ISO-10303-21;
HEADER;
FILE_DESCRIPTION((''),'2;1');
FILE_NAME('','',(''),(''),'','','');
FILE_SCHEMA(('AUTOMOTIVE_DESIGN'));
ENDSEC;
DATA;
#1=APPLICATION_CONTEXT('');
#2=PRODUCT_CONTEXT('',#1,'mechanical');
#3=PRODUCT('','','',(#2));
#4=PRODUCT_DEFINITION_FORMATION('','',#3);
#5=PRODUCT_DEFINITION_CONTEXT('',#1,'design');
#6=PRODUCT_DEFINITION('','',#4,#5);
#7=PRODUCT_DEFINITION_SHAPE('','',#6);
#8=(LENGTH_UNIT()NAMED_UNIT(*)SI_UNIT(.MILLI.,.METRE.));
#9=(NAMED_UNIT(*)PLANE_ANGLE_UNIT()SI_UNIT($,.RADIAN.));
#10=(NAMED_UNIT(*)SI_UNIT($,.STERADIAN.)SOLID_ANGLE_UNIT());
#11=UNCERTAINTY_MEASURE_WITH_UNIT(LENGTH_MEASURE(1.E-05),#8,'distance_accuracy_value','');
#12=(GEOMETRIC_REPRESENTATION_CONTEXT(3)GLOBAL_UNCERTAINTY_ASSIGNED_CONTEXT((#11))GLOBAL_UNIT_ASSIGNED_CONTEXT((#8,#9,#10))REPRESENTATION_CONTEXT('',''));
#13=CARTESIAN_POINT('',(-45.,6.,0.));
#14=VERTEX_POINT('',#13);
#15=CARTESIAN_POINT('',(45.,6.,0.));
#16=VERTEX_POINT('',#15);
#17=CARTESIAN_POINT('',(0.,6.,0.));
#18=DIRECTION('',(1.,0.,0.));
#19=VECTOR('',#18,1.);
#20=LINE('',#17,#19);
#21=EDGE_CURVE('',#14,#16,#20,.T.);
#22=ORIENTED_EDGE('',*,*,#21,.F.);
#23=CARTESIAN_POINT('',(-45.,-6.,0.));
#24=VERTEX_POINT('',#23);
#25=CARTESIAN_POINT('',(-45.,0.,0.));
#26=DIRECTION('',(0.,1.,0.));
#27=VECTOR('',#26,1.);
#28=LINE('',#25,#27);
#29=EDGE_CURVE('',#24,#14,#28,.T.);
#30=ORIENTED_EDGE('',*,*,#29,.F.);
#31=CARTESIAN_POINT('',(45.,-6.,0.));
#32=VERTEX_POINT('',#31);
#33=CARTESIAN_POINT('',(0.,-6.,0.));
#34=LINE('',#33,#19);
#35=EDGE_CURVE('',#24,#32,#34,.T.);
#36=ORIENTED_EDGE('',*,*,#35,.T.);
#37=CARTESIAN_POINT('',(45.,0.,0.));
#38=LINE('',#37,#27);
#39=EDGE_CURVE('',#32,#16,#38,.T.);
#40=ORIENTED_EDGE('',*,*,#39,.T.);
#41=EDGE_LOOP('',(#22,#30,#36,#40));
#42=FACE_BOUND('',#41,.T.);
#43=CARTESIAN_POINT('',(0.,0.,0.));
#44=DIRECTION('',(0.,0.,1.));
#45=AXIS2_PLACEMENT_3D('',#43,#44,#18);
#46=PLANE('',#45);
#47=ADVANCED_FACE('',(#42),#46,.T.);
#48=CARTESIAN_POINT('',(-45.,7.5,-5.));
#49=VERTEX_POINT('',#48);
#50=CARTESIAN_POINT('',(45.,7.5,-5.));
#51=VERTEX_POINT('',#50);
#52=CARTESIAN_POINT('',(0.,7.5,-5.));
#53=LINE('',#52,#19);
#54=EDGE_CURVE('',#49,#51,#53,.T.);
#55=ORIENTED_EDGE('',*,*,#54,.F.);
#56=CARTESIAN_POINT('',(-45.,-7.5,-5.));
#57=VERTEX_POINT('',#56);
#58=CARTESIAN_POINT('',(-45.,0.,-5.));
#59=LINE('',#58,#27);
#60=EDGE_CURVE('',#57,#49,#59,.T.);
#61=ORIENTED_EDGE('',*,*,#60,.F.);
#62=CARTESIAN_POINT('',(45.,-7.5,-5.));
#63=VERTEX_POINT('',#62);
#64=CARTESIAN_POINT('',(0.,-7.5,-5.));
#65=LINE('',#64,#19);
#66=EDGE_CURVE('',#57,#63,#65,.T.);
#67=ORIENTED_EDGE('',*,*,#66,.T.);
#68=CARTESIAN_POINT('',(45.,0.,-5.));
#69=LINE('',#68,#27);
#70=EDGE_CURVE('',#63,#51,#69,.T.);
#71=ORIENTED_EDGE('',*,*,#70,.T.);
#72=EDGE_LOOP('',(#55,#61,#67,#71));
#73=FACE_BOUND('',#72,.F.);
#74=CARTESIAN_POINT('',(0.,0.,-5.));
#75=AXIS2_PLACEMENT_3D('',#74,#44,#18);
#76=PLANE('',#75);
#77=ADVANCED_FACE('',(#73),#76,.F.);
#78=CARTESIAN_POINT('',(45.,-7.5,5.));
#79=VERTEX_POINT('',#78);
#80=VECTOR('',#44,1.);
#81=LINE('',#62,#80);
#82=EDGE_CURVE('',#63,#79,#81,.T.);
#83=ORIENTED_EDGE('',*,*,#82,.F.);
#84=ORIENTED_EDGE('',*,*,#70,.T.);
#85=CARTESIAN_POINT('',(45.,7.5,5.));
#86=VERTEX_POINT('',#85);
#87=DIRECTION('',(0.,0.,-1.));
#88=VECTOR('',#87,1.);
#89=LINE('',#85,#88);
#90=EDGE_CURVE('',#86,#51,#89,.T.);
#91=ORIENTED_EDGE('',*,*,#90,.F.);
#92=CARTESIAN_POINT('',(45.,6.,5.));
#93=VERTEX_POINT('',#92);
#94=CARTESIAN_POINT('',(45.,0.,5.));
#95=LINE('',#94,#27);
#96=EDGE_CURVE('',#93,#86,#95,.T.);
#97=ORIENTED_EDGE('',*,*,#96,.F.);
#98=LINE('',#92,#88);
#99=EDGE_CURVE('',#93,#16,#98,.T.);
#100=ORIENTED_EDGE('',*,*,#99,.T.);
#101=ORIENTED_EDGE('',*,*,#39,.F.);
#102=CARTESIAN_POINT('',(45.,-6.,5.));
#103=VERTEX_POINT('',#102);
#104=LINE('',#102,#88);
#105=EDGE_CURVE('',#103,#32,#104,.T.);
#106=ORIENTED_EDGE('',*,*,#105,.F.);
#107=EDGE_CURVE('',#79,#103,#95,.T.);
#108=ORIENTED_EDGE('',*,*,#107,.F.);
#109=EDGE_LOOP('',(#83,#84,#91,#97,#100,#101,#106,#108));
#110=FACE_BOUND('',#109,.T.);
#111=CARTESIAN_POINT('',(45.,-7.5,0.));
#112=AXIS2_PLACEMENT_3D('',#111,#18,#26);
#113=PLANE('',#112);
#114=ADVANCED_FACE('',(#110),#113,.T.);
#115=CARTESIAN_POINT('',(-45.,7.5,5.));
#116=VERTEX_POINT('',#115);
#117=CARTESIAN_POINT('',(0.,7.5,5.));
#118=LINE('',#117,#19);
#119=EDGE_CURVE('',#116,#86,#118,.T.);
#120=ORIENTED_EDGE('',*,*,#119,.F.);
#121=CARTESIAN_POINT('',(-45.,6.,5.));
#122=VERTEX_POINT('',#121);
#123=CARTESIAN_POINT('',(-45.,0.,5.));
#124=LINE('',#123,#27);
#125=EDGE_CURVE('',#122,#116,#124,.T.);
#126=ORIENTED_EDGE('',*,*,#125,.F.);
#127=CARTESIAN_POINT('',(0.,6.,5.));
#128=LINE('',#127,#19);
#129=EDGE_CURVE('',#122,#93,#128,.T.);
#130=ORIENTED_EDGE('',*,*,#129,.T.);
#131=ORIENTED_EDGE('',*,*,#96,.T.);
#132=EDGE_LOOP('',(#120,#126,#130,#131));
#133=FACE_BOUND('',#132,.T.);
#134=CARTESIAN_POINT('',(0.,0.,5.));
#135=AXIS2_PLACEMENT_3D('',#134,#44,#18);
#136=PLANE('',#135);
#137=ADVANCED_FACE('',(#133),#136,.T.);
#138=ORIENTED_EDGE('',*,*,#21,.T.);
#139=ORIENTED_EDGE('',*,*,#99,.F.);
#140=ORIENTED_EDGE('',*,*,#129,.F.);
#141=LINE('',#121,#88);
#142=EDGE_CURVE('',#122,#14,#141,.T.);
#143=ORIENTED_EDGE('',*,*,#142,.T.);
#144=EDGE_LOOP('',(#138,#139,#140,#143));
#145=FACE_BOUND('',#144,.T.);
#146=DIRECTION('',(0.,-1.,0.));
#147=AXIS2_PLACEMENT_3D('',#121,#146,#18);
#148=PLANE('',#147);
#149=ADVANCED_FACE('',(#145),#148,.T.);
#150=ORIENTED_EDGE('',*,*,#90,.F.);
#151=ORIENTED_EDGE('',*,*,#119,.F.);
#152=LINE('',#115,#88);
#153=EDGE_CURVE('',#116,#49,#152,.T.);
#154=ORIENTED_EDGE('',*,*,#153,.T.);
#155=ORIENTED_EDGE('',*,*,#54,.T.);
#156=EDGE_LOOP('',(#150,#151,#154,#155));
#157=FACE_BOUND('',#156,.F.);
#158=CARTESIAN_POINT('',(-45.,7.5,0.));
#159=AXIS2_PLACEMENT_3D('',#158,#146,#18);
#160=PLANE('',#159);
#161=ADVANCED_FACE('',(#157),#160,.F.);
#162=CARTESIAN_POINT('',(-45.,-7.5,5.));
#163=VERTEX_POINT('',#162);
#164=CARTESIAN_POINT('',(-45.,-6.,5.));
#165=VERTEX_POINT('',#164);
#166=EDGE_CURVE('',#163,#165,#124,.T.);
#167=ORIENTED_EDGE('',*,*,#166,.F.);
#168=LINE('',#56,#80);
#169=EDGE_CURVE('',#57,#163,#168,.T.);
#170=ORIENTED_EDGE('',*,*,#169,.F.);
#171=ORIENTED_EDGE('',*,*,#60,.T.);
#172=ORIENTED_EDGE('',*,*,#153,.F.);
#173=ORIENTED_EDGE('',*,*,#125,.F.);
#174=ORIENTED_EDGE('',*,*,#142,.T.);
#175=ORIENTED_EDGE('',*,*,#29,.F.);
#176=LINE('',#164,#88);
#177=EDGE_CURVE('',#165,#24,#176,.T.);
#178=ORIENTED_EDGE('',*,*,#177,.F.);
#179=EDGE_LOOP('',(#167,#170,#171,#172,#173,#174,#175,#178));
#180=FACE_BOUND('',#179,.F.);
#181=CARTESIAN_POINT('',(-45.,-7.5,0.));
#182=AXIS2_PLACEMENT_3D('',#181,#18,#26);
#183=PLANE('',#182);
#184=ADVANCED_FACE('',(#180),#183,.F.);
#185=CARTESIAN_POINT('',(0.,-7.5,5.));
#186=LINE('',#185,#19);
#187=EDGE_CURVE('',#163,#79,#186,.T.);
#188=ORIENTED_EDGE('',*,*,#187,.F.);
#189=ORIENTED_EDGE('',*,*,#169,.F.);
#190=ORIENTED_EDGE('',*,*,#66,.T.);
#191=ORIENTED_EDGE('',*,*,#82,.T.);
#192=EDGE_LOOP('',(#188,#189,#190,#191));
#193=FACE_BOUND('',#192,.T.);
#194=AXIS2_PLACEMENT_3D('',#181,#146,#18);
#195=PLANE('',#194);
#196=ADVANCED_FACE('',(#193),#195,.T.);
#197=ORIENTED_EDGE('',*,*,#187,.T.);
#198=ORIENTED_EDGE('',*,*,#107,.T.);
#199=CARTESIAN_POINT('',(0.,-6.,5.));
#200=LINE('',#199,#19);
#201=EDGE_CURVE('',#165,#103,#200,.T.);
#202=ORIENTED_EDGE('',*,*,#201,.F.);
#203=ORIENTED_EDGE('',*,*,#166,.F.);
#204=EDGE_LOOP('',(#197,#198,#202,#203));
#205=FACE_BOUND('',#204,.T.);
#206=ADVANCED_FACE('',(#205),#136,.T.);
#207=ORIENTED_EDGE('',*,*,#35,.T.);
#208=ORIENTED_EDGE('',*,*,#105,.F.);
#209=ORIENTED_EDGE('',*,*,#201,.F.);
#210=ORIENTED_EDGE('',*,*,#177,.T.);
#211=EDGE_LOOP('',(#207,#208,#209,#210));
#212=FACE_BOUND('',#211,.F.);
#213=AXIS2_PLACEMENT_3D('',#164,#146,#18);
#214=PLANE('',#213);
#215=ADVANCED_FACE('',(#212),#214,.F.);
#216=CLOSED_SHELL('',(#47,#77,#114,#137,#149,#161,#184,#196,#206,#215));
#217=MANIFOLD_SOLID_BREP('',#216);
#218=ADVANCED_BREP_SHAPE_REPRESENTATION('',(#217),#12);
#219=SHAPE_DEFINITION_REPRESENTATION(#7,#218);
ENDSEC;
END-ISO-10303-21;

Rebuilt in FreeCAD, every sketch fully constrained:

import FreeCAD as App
import Part
import Sketcher
Q = App.Units.Quantity

doc = App.newDocument("Part")
params = doc.addObject("Spreadsheet::Sheet", "Params")
for row, (alias, value) in enumerate([
    ("sketch1_width", "90 mm"),
    ("sketch1_height", "15 mm"),
    ("pad1_length", "10 mm"),
    ("sketch2_width", "90 mm"),
    ("sketch2_height", "12 mm"),
    ("pocket1_length", "5 mm"),
], start=1):
    params.set(f"A{row}", alias)
    params.set(f"B{row}", "=" + value)
    params.setAlias(f"B{row}", alias)

body = doc.addObject("PartDesign::Body", "Body")

# Sketch on XY plane
sketch1 = doc.addObject("Sketcher::SketchObject", "Sketch")
body.addObject(sketch1)
sketch1.AttachmentSupport = (doc.XY_Plane, [""])
sketch1.MapMode = "FlatFace"
sketch1.addGeometry([
    Part.LineSegment(App.Vector(-45, 8, 0), App.Vector(-45, -8, 0)),
    Part.LineSegment(App.Vector(-45, -8, 0), App.Vector(45, -8, 0)),
    Part.LineSegment(App.Vector(45, -8, 0), App.Vector(45, 8, 0)),
    Part.LineSegment(App.Vector(45, 8, 0), App.Vector(-45, 8, 0)),
], False)
sketch1.addConstraint([
    Sketcher.Constraint("Coincident", 0, 2, 1, 1),
    Sketcher.Constraint("Coincident", 1, 2, 2, 1),
    Sketcher.Constraint("Coincident", 2, 2, 3, 1),
    Sketcher.Constraint("Coincident", 3, 2, 0, 1),
    Sketcher.Constraint("Vertical", 0),
    Sketcher.Constraint("Horizontal", 1),
    Sketcher.Constraint("Vertical", 2),
    Sketcher.Constraint("Horizontal", 3),
    Sketcher.Constraint("Symmetric", 0, 2, 2, 2, -1, 1),
    Sketcher.Constraint("DistanceX", 1, 1, 1, 2, Q("90 mm")),
    Sketcher.Constraint("DistanceY", 0, 2, 0, 1, Q("15 mm")),
])
sketch1.setExpression("Constraints[9]", "Params.sketch1_width")
sketch1.setExpression("Constraints[10]", "Params.sketch1_height")
pad1 = doc.addObject("PartDesign::Pad", "Pad")
body.addObject(pad1)
pad1.Profile = sketch1
pad1.setExpression("Length", "Params.pad1_length")
pad1.Midplane = True

# Sketch on XY plane
sketch2 = doc.addObject("Sketcher::SketchObject", "Sketch001")
body.addObject(sketch2)
sketch2.AttachmentSupport = (doc.XY_Plane, [""])
sketch2.MapMode = "FlatFace"
sketch2.AttachmentOffset = App.Placement(App.Vector(0, 0, 5), App.Rotation())
sketch2.addGeometry([
    Part.LineSegment(App.Vector(-45, 6, 0), App.Vector(-45, -6, 0)),
    Part.LineSegment(App.Vector(-45, -6, 0), App.Vector(45, -6, 0)),
    Part.LineSegment(App.Vector(45, -6, 0), App.Vector(45, 6, 0)),
    Part.LineSegment(App.Vector(45, 6, 0), App.Vector(-45, 6, 0)),
], False)
sketch2.addConstraint([
    Sketcher.Constraint("Coincident", 0, 2, 1, 1),
    Sketcher.Constraint("Coincident", 1, 2, 2, 1),
    Sketcher.Constraint("Coincident", 2, 2, 3, 1),
    Sketcher.Constraint("Coincident", 3, 2, 0, 1),
    Sketcher.Constraint("Vertical", 0),
    Sketcher.Constraint("Horizontal", 1),
    Sketcher.Constraint("Vertical", 2),
    Sketcher.Constraint("Horizontal", 3),
    Sketcher.Constraint("Symmetric", 0, 2, 2, 2, -1, 1),
    Sketcher.Constraint("DistanceX", 1, 1, 1, 2, Q("90 mm")),
    Sketcher.Constraint("DistanceY", 0, 2, 0, 1, Q("12 mm")),
])
sketch2.setExpression("Constraints[9]", "Params.sketch2_width")
sketch2.setExpression("Constraints[10]", "Params.sketch2_height")
pocket1 = doc.addObject("PartDesign::Pocket", "Pocket")
body.addObject(pocket1)
pocket1.Profile = sketch2
pocket1.setExpression("Length", "Params.pocket1_length")

doc.recompute()
